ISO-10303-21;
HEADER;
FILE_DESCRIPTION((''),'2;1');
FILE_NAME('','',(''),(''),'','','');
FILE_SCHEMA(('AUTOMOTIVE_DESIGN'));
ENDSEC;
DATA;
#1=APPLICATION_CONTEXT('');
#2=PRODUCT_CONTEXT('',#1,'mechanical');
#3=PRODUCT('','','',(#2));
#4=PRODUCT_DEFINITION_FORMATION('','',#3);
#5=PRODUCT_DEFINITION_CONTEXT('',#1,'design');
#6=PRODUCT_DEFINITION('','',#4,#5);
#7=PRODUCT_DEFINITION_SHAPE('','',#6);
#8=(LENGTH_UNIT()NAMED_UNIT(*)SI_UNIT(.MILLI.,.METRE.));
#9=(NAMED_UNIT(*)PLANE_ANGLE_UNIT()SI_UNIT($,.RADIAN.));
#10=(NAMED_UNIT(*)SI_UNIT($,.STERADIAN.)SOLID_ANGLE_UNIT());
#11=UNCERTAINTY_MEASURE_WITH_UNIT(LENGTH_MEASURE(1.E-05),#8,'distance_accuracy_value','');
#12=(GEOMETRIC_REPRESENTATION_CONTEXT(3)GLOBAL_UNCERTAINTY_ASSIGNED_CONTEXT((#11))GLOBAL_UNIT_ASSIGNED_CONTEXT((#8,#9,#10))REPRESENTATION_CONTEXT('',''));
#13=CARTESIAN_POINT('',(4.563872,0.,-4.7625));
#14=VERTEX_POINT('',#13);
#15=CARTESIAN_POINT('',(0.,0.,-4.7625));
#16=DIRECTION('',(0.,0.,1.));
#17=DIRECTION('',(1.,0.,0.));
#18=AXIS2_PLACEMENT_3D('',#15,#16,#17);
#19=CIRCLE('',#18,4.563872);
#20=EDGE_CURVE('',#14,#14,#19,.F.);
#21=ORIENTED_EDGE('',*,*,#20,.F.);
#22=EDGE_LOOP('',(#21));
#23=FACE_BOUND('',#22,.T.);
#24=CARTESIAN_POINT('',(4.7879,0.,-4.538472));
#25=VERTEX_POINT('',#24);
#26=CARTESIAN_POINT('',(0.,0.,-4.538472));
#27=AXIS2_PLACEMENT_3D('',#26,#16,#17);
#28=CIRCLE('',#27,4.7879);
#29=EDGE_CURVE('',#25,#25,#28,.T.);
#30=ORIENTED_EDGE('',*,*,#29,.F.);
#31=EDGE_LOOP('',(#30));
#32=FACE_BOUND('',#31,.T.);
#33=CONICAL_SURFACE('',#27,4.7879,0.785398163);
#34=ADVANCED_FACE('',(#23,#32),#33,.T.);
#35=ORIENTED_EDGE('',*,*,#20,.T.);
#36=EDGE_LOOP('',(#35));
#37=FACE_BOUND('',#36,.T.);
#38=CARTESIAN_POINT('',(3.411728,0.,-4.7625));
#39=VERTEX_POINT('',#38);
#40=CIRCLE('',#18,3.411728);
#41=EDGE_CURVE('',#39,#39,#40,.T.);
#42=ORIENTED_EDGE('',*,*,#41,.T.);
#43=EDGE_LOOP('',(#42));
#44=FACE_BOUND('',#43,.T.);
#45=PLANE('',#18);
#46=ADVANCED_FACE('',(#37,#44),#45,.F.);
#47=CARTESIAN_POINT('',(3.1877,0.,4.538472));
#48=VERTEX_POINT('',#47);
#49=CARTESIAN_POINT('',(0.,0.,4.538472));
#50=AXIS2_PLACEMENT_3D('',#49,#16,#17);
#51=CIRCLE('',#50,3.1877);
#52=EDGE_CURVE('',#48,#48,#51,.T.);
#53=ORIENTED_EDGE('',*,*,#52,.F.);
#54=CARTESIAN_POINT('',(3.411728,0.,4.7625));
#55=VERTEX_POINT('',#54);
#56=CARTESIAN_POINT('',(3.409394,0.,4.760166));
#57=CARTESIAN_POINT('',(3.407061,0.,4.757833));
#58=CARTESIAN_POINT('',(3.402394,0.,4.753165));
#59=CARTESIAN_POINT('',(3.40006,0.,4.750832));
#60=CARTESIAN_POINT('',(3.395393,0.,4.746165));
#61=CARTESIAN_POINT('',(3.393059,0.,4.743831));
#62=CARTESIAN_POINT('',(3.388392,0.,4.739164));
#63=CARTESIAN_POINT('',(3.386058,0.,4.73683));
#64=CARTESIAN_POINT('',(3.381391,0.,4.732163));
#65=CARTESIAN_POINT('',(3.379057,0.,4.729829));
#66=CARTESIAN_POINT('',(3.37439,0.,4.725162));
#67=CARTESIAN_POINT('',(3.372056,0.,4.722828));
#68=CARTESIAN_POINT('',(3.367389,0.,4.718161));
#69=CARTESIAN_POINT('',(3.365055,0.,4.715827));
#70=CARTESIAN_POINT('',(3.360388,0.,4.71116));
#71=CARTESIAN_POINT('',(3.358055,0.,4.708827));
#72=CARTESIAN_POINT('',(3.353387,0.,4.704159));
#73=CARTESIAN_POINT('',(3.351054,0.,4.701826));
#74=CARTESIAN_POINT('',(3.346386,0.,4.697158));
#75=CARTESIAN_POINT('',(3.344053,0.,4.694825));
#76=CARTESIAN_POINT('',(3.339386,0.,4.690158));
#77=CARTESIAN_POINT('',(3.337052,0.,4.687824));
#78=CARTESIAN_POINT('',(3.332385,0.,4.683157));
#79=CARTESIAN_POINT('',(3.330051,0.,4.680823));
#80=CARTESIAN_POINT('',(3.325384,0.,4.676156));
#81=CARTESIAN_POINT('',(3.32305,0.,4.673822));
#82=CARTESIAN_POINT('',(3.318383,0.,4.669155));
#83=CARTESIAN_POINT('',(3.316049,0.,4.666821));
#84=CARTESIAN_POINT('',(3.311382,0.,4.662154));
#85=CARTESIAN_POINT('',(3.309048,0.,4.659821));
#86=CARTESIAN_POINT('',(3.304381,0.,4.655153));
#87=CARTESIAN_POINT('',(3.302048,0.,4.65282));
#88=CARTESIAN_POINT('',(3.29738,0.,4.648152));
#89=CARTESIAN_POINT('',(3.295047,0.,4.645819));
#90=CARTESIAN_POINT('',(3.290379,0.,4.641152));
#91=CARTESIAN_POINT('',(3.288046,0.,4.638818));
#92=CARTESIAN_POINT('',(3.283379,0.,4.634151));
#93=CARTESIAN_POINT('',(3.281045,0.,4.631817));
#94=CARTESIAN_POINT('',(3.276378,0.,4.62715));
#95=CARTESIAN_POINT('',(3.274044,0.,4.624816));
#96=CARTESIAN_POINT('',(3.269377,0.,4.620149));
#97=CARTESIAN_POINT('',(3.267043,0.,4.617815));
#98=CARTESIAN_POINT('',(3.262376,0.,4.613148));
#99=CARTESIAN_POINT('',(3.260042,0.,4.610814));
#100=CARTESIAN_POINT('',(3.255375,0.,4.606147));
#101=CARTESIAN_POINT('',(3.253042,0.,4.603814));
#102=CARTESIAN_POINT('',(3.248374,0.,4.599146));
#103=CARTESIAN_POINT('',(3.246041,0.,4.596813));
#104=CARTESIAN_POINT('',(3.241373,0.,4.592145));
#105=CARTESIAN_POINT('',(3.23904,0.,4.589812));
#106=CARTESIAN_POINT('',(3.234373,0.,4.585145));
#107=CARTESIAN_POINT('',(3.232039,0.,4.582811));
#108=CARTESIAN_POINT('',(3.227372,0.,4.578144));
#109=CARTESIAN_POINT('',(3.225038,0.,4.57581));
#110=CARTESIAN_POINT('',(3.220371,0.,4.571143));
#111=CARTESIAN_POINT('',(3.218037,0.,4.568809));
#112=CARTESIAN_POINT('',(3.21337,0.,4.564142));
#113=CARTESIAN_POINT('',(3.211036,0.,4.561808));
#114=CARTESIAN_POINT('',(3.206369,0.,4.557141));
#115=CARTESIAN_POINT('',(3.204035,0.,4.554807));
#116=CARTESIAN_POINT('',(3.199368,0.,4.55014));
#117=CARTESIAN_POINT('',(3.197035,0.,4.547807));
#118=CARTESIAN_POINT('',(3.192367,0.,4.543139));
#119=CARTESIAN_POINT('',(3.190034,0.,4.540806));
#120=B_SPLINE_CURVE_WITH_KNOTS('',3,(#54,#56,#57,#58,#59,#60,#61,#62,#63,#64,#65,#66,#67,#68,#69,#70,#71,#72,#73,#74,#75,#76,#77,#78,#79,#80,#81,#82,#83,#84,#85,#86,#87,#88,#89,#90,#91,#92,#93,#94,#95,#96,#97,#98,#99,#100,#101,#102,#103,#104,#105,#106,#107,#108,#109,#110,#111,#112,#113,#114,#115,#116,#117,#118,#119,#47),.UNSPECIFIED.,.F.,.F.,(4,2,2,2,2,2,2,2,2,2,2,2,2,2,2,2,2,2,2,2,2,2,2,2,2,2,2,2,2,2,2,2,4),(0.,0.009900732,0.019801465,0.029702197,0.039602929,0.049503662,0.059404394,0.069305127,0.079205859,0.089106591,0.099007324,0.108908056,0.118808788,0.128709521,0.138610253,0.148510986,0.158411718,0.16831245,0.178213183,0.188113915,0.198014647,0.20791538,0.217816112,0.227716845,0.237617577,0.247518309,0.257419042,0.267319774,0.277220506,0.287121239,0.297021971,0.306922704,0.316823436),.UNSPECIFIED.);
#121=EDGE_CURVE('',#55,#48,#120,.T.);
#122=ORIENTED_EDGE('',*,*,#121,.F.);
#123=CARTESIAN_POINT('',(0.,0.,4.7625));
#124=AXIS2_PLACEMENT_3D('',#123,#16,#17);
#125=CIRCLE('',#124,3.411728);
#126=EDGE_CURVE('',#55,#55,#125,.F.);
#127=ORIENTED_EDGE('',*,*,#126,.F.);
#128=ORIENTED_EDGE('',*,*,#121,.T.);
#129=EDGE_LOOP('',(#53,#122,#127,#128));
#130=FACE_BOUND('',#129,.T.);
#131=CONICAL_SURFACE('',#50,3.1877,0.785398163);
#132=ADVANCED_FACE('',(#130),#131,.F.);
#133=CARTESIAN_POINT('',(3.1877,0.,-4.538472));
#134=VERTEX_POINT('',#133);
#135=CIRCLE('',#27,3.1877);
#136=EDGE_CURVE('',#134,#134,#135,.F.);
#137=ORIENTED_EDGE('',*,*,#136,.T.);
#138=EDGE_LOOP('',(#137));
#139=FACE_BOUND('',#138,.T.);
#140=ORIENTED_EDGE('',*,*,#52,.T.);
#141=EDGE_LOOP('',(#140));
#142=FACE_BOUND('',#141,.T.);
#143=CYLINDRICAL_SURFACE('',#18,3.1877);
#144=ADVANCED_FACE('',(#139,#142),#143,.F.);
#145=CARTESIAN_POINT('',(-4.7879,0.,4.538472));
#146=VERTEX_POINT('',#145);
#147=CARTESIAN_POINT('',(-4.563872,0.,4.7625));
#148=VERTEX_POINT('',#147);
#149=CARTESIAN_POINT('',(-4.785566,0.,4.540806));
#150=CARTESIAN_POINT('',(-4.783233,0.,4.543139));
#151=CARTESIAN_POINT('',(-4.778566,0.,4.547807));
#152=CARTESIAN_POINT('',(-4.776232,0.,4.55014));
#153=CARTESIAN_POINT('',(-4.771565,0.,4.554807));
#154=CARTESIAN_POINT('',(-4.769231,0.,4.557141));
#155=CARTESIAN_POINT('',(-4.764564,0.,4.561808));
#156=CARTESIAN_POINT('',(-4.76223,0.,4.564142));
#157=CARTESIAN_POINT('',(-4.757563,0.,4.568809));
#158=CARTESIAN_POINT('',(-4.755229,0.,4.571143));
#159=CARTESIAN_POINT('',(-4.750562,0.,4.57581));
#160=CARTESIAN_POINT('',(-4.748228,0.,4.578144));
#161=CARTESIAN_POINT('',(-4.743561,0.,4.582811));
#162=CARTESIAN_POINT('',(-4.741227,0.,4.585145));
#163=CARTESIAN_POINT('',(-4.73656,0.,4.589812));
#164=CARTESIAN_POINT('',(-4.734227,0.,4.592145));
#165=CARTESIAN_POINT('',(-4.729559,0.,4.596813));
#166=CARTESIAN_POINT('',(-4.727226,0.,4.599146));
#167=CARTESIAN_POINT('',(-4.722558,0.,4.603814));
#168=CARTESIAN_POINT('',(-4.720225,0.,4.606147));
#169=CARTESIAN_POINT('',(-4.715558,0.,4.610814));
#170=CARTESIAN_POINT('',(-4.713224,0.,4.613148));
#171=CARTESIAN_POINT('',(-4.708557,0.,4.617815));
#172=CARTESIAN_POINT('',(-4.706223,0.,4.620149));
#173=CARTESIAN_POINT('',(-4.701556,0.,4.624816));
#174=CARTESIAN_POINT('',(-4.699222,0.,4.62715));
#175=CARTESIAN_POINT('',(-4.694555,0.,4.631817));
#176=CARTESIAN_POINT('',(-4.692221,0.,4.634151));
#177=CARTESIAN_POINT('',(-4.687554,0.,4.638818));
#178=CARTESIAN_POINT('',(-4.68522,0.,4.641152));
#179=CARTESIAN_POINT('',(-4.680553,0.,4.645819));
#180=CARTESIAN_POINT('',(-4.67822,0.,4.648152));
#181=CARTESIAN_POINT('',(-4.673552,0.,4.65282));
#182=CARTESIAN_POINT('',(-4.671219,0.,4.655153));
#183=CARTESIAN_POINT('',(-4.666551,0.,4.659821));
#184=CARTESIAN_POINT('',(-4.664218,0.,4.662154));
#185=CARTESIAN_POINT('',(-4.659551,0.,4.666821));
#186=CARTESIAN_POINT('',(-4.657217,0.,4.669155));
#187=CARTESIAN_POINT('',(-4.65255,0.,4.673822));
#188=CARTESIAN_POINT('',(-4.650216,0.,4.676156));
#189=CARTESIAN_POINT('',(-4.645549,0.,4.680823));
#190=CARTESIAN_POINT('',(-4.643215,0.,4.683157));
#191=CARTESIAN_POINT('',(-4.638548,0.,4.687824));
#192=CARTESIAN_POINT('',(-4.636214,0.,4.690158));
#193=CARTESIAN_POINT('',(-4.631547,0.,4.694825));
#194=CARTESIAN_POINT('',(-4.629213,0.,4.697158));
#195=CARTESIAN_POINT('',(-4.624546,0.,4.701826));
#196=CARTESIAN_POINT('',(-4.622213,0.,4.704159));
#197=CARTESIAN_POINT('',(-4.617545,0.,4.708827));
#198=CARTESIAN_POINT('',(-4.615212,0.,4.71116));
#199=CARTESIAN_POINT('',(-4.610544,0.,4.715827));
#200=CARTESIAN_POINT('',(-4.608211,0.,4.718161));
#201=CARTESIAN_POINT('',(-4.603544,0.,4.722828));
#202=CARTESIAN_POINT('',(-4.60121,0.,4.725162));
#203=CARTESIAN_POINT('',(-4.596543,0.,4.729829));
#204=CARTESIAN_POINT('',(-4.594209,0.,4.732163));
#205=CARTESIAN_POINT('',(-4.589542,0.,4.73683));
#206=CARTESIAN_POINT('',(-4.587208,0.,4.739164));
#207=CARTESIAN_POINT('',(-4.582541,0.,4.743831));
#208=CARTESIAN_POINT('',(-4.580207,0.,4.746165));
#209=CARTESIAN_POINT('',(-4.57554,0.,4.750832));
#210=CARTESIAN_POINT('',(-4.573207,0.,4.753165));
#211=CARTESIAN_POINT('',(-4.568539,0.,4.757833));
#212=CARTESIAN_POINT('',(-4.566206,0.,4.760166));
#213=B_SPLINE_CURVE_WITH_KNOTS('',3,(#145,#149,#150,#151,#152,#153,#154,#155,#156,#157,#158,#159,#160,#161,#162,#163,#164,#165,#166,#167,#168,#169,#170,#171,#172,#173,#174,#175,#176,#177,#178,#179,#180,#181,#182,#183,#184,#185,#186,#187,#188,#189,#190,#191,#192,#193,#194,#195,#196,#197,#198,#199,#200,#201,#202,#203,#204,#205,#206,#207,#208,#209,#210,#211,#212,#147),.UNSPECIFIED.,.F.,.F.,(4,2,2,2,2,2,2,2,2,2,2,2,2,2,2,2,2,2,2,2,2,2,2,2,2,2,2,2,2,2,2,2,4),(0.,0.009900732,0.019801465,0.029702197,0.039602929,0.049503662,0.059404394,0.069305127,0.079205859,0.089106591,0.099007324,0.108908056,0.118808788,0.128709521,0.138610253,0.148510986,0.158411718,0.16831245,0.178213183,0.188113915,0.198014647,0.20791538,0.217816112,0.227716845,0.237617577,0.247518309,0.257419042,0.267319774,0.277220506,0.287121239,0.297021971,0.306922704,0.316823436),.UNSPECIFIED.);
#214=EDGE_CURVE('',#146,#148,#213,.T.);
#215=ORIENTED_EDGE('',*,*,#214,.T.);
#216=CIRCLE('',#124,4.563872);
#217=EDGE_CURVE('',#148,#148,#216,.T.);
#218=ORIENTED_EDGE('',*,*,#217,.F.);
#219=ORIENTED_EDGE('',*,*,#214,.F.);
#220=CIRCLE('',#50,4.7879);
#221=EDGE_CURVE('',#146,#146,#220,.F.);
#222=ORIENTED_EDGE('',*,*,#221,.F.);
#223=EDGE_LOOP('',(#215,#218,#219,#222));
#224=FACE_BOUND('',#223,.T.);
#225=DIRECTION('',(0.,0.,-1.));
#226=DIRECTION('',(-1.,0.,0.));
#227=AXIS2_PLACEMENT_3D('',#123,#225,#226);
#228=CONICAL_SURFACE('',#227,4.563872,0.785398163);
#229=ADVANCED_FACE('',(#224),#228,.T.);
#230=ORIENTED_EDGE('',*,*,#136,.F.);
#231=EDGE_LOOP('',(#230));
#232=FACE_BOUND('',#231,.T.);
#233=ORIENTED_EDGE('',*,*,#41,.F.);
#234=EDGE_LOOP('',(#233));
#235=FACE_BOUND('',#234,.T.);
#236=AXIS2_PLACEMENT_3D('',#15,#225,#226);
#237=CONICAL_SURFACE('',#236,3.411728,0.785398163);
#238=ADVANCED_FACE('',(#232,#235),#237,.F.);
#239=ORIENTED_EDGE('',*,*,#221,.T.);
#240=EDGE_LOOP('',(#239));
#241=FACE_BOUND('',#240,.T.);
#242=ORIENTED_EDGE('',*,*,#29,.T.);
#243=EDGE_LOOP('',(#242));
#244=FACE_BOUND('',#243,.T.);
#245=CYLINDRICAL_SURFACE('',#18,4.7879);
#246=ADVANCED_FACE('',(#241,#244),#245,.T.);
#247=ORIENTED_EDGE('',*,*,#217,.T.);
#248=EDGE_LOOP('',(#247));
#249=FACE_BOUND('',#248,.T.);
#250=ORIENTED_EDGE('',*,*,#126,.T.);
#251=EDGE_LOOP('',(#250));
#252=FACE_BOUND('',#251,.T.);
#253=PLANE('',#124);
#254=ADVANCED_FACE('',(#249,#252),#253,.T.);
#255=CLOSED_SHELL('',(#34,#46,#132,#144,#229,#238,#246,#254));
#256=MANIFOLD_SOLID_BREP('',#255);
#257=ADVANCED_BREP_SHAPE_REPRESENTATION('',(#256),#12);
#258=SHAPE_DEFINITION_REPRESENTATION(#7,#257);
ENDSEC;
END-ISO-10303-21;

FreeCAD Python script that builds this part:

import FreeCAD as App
import Part
import Sketcher
Q = App.Units.Quantity


def edges_at(feature, points):
    """Names of the edges that pass closest to the given points."""
    edges = feature.Shape.Edges
    near = lambda p: min(range(len(edges)), key=lambda i: edges[i].distToShape(Part.Vertex(*p))[0])
    return sorted({f"Edge{near(p) + 1}" for p in points})

doc = App.newDocument("Part")
body = doc.addObject("PartDesign::Body", "Body")

sketch1 = body.newObject("Sketcher::SketchObject", "Sketch")
sketch1.AttachmentSupport = (doc.getObject("XY_Plane"), [""])
sketch1.MapMode = "FlatFace"
sketch1.addGeometry(Part.Circle(App.Vector(0, 0, 0), App.Vector(0, 0, 1), 4.8), False)
sketch1.addGeometry(Part.Circle(App.Vector(0, 0, 0), App.Vector(0, 0, 1), 3.2), False)
sketch1.addConstraint(Sketcher.Constraint("Coincident", 0, 3, -1, 1))
sketch1.addConstraint(Sketcher.Constraint("Coincident", 1, 3, -1, 1))
sketch1.addConstraint(Sketcher.Constraint("Diameter", 0, Q("0.377 in")))
sketch1.addConstraint(Sketcher.Constraint("Diameter", 1, Q("0.251 in")))
pad1 = body.newObject("PartDesign::Pad", "Pad")
pad1.Profile = sketch1
pad1.Type = "TwoLengths"
pad1.Length = Q("0.1875 in")
pad1.Length2 = Q("0.1875 in")
doc.recompute()

chamfer = body.newObject("PartDesign::Chamfer", "Chamfer")
chamfer.Base = (pad1, edges_at(pad1, [
    (-4.788, 0, -4.763),
    (-3.188, 0, -4.763),
    (-4.788, 0, 4.763),
    (-3.188, 0, 4.763),
]))
chamfer.Size = 0.224028

doc.recompute()
